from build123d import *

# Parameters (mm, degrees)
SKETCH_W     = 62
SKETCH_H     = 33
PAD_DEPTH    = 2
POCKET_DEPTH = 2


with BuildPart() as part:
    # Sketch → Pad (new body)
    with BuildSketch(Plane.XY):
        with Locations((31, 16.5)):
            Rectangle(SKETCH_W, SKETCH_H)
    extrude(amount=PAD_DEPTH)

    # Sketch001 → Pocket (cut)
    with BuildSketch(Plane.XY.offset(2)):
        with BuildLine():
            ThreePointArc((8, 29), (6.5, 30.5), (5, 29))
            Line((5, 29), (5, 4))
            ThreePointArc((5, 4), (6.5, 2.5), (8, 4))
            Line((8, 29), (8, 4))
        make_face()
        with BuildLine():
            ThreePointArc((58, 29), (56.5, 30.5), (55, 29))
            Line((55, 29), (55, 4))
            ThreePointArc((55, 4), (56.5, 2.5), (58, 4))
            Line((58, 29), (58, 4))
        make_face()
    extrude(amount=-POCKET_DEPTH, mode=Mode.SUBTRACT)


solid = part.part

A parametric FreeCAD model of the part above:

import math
import FreeCAD as App
import Part
import Sketcher
from FreeCAD import Vector
Q = App.Units.Quantity

doc = App.newDocument("Part")
params = doc.addObject("Spreadsheet::Sheet", "Params")
for row, (alias, value) in enumerate([
    ("sketch1_width", "62 mm"),
    ("sketch1_height", "33 mm"),
    ("pad1_length", "2 mm"),
    ("sketch2_radius", "1.5 mm"),
    ("sketch2_height", "25 mm"),
    ("pocket1_length", "2 mm"),
], start=1):
    params.set(f"A{row}", alias)
    params.set(f"B{row}", "=" + value)
    params.setAlias(f"B{row}", alias)

body = doc.addObject("PartDesign::Body", "Body")

# Sketch on XY plane
sketch1 = body.newObject("Sketcher::SketchObject", "Sketch")
sketch1.AttachmentSupport = (doc.getObject("XY_Plane"), [""])
sketch1.MapMode = "FlatFace"
sketch1.addGeometry([
    Part.LineSegment(Vector(0, 33, 0), Vector(0, 0, 0)),
    Part.LineSegment(Vector(0, 0, 0), Vector(62, 0, 0)),
    Part.LineSegment(Vector(62, 0, 0), Vector(62, 33, 0)),
    Part.LineSegment(Vector(62, 33, 0), Vector(0, 33, 0)),
], False)
sketch1.addConstraint([
    Sketcher.Constraint("Coincident", 0, 2, 1, 1),
    Sketcher.Constraint("Coincident", 1, 2, 2, 1),
    Sketcher.Constraint("Coincident", 2, 2, 3, 1),
    Sketcher.Constraint("Coincident", 3, 2, 0, 1),
    Sketcher.Constraint("Vertical", 0),
    Sketcher.Constraint("Horizontal", 1),
    Sketcher.Constraint("Vertical", 2),
    Sketcher.Constraint("Horizontal", 3),
    Sketcher.Constraint("Coincident", 0, 2, -1, 1),
    Sketcher.Constraint("DistanceX", 1, 1, 1, 2, Q("62 mm")),
    Sketcher.Constraint("DistanceY", 0, 2, 0, 1, Q("33 mm")),
])
sketch1.setExpression("Constraints[9]", "Params.sketch1_width")
sketch1.setExpression("Constraints[10]", "Params.sketch1_height")
pad1 = body.newObject("PartDesign::Pad", "Pad")
pad1.Profile = sketch1
pad1.setExpression("Length", "Params.pad1_length")

# Sketch on XY plane
sketch2 = body.newObject("Sketcher::SketchObject", "Sketch001")
sketch2.AttachmentSupport = (doc.getObject("XY_Plane"), [""])
sketch2.MapMode = "FlatFace"
sketch2.AttachmentOffset = App.Placement(Vector(0, 0, 2), App.Rotation())
sketch2.addGeometry([
    Part.ArcOfCircle(Part.Circle(Vector(6.5, 29, 0), Vector(0, 0, 1), 1.5), math.radians(0), math.radians(180)),  # 0
    Part.LineSegment(Vector(5, 29, 0), Vector(5, 4, 0)),  # 1
    Part.ArcOfCircle(Part.Circle(Vector(6.5, 4, 0), Vector(0, 0, 1), 1.5), math.radians(180), math.radians(360)),  # 2
    Part.LineSegment(Vector(8, 4, 0), Vector(8, 29, 0)),  # 3
    Part.ArcOfCircle(Part.Circle(Vector(56.5, 29, 0), Vector(0, 0, 1), 1.5), math.radians(0), math.radians(180)),  # 4
    Part.LineSegment(Vector(55, 29, 0), Vector(55, 4, 0)),  # 5
    Part.ArcOfCircle(Part.Circle(Vector(56.5, 4, 0), Vector(0, 0, 1), 1.5), math.radians(180), math.radians(360)),  # 6
    Part.LineSegment(Vector(58, 4, 0), Vector(58, 29, 0)),  # 7
], False)
sketch2.addConstraint([
    Sketcher.Constraint("Tangent", 0, 2, 1, 1),
    Sketcher.Constraint("Tangent", 1, 2, 2, 1),
    Sketcher.Constraint("Tangent", 2, 2, 3, 1),
    Sketcher.Constraint("Tangent", 3, 2, 0, 1),
    Sketcher.Constraint("Tangent", 4, 2, 5, 1),
    Sketcher.Constraint("Tangent", 5, 2, 6, 1),
    Sketcher.Constraint("Tangent", 6, 2, 7, 1),
    Sketcher.Constraint("Tangent", 7, 2, 4, 1),
    Sketcher.Constraint("Vertical", 1),
    Sketcher.Constraint("Vertical", 3),
    Sketcher.Constraint("Vertical", 5),
    Sketcher.Constraint("Vertical", 7),
    Sketcher.Constraint("Equal", 2, 4),
    Sketcher.Constraint("Horizontal", 0, 3, 4, 3),
    Sketcher.Constraint("Horizontal", 2, 3, 6, 3),
    Sketcher.Constraint("Radius", 0, Q("1.5 mm")),
    Sketcher.Constraint("DistanceY", 1, 2, 1, 1, Q("25 mm")),
    Sketcher.Constraint("DistanceY", -1, 1, 0, 3, Q("29 mm")),
    Sketcher.Constraint("DistanceX", -1, 1, 0, 2, Q("5 mm")),
    Sketcher.Constraint("DistanceX", -1, 1, 4, 2, Q("55 mm")),
])
sketch2.setExpression("Constraints[15]", "Params.sketch2_radius")
sketch2.setExpression("Constraints[16]", "Params.sketch2_height")
pocket1 = body.newObject("PartDesign::Pocket", "Pocket")
pocket1.Profile = sketch2
pocket1.setExpression("Length", "Params.pocket1_length")

doc.recompute()
